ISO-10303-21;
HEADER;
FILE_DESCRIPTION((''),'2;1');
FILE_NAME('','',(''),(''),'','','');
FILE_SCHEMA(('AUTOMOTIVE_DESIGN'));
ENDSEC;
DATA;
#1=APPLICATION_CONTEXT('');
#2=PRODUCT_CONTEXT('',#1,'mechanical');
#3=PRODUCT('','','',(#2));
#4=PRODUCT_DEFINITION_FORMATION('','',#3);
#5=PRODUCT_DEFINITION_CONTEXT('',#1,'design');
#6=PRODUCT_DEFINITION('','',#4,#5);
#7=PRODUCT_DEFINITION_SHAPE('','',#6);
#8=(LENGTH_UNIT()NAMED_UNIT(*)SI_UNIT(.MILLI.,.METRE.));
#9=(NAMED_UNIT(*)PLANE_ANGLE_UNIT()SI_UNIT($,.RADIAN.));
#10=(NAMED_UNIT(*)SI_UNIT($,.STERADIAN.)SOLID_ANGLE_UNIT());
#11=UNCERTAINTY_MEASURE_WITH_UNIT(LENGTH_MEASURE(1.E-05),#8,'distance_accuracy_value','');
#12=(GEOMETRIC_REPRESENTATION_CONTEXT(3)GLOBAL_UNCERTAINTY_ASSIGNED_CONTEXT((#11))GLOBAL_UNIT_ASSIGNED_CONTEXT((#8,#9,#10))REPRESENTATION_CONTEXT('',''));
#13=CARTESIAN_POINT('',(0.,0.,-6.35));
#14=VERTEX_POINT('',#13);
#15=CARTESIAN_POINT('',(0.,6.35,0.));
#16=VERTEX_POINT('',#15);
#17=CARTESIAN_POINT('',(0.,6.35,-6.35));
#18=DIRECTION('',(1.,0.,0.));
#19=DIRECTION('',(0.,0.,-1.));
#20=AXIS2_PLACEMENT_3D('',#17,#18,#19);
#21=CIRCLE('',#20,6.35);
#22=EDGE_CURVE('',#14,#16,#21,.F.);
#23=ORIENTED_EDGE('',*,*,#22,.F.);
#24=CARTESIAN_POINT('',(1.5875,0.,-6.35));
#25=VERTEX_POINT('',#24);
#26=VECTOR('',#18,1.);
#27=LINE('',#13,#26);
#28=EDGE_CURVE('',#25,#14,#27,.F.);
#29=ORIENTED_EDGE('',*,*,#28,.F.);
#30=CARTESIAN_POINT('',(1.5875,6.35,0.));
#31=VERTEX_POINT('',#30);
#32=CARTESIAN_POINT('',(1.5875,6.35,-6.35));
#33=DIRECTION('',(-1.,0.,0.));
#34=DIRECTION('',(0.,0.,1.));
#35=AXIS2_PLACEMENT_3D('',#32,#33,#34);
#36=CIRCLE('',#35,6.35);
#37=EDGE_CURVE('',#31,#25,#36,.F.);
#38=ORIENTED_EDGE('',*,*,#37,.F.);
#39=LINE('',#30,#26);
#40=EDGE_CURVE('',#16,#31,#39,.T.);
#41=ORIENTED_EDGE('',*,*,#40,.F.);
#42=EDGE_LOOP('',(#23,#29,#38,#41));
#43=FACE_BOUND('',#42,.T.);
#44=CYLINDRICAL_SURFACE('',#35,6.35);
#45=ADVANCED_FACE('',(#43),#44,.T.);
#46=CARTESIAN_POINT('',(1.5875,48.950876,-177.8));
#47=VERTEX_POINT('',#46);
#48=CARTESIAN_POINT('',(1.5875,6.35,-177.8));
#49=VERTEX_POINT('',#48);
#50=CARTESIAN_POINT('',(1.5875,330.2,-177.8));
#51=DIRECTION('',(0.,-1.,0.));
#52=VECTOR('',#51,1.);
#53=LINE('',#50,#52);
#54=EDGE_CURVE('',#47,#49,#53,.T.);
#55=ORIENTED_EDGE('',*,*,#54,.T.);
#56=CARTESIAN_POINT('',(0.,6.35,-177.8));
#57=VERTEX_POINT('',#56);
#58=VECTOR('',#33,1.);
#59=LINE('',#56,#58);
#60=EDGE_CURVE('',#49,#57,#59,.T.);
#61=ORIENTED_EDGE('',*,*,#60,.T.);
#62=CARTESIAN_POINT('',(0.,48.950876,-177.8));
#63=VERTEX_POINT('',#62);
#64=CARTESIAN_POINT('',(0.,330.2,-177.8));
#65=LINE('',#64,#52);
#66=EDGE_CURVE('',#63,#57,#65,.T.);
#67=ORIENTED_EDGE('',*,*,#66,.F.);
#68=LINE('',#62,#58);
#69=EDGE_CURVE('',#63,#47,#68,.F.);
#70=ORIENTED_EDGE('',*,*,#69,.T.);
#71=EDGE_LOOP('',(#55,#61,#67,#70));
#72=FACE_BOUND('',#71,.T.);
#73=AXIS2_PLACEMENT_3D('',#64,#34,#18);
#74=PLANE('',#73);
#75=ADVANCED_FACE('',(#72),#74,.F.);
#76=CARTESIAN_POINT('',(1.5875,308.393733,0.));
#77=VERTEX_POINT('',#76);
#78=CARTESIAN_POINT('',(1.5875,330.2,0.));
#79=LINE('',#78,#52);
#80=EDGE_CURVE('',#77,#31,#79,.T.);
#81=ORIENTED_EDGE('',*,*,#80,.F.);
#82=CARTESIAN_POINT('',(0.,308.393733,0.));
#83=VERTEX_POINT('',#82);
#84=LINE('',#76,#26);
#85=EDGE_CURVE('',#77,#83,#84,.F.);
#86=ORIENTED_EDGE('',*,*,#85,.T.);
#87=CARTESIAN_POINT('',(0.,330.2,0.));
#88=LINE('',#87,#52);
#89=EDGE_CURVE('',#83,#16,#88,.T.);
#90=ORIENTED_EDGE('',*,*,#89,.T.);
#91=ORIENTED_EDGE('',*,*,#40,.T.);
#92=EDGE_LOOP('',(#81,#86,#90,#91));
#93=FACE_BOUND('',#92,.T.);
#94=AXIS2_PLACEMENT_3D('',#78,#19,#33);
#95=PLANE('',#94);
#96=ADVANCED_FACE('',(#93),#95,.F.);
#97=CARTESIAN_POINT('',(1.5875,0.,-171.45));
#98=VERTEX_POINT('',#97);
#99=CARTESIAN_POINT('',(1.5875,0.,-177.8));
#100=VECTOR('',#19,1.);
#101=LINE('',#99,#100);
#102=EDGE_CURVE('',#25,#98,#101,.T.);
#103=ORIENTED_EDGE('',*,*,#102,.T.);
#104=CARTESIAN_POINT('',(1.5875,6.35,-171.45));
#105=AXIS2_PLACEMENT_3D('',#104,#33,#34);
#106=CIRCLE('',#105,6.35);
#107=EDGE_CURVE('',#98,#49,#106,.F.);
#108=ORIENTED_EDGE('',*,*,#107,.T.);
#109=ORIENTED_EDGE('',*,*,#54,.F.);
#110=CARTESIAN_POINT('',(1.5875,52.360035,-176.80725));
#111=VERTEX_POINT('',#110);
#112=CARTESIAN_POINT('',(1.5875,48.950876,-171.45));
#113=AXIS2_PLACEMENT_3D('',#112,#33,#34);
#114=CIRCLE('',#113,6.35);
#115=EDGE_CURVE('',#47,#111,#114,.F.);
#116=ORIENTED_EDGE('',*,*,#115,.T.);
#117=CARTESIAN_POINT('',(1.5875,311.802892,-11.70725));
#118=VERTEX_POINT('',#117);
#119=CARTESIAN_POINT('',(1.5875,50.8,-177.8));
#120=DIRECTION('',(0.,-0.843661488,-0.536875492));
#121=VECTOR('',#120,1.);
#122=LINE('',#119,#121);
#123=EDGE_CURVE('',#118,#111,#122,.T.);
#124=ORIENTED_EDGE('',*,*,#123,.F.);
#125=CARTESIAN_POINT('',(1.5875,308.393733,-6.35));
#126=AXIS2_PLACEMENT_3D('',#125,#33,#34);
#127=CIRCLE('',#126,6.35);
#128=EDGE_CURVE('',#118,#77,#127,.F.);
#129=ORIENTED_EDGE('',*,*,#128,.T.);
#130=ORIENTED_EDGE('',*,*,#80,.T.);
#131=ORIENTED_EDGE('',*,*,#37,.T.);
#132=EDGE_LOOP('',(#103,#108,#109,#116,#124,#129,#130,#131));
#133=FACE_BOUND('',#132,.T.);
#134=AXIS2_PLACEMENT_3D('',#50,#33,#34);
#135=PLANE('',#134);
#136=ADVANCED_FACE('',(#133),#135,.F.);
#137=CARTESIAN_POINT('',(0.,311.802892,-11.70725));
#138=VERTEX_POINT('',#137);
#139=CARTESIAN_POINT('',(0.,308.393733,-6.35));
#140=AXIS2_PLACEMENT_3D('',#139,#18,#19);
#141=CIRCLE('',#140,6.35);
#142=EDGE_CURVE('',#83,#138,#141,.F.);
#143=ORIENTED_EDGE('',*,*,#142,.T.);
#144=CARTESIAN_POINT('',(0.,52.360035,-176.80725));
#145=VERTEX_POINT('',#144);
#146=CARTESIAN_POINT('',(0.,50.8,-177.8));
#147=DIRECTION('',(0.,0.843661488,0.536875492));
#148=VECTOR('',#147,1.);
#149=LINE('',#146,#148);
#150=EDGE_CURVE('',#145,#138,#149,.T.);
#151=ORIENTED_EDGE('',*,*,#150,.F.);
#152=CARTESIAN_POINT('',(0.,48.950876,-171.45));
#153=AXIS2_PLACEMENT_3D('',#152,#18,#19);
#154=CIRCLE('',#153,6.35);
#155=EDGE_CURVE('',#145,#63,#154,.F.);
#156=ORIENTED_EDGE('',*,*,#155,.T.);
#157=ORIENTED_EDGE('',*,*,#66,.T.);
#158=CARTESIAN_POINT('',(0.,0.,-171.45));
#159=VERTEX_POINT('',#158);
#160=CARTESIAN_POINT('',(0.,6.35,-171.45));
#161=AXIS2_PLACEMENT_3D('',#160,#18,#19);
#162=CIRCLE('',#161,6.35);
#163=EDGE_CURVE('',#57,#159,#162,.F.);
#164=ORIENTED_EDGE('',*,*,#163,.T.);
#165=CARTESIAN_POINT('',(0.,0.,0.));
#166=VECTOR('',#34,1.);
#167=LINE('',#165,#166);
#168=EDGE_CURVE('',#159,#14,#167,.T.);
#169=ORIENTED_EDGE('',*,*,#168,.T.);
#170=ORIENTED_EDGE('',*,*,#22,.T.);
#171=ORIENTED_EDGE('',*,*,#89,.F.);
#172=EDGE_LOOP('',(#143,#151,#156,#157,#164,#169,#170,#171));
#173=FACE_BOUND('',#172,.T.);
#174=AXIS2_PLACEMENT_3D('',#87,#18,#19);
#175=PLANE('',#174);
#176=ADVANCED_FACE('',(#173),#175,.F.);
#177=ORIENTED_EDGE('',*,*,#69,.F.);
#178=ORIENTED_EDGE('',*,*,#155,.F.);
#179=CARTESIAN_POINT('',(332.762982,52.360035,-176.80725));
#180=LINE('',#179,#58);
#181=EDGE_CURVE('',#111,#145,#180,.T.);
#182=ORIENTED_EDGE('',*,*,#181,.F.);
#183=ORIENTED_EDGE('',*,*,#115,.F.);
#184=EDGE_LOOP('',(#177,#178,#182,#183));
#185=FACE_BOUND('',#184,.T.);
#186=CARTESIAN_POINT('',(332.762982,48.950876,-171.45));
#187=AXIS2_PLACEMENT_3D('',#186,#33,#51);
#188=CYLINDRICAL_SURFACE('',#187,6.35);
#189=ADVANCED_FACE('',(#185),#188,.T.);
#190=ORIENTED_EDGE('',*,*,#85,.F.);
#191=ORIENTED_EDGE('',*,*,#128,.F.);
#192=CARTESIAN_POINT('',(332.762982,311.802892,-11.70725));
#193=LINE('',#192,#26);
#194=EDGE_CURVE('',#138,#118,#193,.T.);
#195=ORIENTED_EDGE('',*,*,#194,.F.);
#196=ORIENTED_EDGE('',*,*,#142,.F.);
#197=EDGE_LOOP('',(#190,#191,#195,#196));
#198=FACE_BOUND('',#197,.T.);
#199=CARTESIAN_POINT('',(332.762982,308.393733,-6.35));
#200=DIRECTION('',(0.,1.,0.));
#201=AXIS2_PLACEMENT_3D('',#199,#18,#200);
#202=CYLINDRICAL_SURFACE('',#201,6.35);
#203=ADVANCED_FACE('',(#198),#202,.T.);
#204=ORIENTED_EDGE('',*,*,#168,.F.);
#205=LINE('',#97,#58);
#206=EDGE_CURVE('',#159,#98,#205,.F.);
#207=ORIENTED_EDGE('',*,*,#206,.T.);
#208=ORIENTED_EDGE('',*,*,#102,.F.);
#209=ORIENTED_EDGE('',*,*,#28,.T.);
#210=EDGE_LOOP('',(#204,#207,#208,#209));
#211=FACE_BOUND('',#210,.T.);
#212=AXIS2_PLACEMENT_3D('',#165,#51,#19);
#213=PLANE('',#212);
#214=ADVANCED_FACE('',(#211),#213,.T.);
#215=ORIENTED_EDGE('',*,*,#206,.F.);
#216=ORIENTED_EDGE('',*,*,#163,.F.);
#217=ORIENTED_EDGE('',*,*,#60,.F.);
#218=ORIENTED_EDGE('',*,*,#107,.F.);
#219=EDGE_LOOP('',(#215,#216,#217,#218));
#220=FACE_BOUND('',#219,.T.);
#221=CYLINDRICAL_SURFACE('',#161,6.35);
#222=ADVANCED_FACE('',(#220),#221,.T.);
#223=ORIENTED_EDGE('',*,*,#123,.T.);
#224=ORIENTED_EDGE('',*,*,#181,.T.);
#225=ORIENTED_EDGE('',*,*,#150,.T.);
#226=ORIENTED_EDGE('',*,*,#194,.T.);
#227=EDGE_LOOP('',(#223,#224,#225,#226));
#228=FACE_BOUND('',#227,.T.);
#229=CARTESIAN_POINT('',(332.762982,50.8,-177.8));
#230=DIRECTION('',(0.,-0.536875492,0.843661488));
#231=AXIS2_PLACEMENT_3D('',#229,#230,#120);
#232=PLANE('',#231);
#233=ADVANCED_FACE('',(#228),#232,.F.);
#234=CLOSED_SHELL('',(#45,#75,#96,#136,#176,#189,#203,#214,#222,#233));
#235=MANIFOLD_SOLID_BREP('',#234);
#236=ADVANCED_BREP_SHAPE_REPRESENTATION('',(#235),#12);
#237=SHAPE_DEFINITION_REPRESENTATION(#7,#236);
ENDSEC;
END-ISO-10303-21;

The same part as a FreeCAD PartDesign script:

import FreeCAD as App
import Part
import Sketcher
from FreeCAD import Vector
Q = App.Units.Quantity


def edges_at(feature, points):
    """Names of the edges that pass closest to the given points."""
    edges = feature.Shape.Edges
    near = lambda p: min(range(len(edges)), key=lambda i: edges[i].distToShape(Part.Vertex(*p))[0])
    return sorted({f"Edge{near(p) + 1}" for p in points})


def add_polygon(sketch, points):
    """Adds a closed chain of lines whose ends are joined by coincident constraints."""
    first, n = sketch.GeometryCount, len(points)
    for a, b in zip(points, points[1:] + points[:1]):
        sketch.addGeometry(Part.LineSegment(App.Vector(*a, 0), App.Vector(*b, 0)), False)
    for i in range(n):
        sketch.addConstraint(Sketcher.Constraint("Coincident", first + i, 2, first + (i + 1) % n, 1))

doc = App.newDocument("Part")
body = doc.addObject("PartDesign::Body", "Body")

sketch1 = body.newObject("Sketcher::SketchObject", "Sketch")
sketch1.AttachmentSupport = (doc.getObject("XZ_Plane"), [""])
sketch1.MapMode = "FlatFace"
add_polygon(sketch1, [(0, -177.8), (0, 0), (1.5875, 0), (1.5875, -177.8)])
sketch1.addConstraint(Sketcher.Constraint("Vertical", 0))
sketch1.addConstraint(Sketcher.Constraint("Horizontal", 1))
sketch1.addConstraint(Sketcher.Constraint("Vertical", 2))
sketch1.addConstraint(Sketcher.Constraint("Horizontal", 3))
sketch1.addConstraint(Sketcher.Constraint("Coincident", 0, 2, -1, 1))
sketch1.addConstraint(Sketcher.Constraint("DistanceY", 0, 1, 0, 2, Q("7 in")))
sketch1.addConstraint(Sketcher.Constraint("DistanceX", 1, 1, 1, 2, Q("0.0625 in")))
pad1 = body.newObject("PartDesign::Pad", "Pad")
pad1.Profile = sketch1
pad1.Length = Q("13 in")
pad1.Reversed = True

sketch2 = body.newObject("Sketcher::SketchObject", "Sketch001")
sketch2.AttachmentSupport = (doc.getObject("YZ_Plane"), [""])
sketch2.MapMode = "FlatFace"
add_polygon(sketch2, [(50.8, -177.8), (330.2, 0), (330.2, -177.8)])
sketch2.addConstraint(Sketcher.Constraint("Vertical", 1))
sketch2.addConstraint(Sketcher.Constraint("Horizontal", 2))
sketch2.addConstraint(Sketcher.Constraint("PointOnObject", 0, 2, -1))
sketch2.addConstraint(Sketcher.Constraint("DistanceX", 2, 2, 2, 1, Q("11 in")))
sketch2.addConstraint(Sketcher.Constraint("DistanceY", 1, 2, 1, 1, Q("7 in")))
sketch2.addConstraint(Sketcher.Constraint("DistanceX", -1, 1, 0, 2, Q("13 in")))
pocket1 = body.newObject("PartDesign::Pocket", "Pocket")
pocket1.Profile = sketch2
pocket1.Length = Q("0.0625 in")
pocket1.Reversed = True
doc.recompute()

fillet = body.newObject("PartDesign::Fillet", "Fillet")
fillet.Base = (pocket1, edges_at(pocket1, [
    (0.794, 50.8, -177.8),
    (0.794, 330.2, 0),
    (0.794, 0, -177.8),
    (0.794, 0, 0),
]))
fillet.Radius = Q("0.25 in")

doc.recompute()
